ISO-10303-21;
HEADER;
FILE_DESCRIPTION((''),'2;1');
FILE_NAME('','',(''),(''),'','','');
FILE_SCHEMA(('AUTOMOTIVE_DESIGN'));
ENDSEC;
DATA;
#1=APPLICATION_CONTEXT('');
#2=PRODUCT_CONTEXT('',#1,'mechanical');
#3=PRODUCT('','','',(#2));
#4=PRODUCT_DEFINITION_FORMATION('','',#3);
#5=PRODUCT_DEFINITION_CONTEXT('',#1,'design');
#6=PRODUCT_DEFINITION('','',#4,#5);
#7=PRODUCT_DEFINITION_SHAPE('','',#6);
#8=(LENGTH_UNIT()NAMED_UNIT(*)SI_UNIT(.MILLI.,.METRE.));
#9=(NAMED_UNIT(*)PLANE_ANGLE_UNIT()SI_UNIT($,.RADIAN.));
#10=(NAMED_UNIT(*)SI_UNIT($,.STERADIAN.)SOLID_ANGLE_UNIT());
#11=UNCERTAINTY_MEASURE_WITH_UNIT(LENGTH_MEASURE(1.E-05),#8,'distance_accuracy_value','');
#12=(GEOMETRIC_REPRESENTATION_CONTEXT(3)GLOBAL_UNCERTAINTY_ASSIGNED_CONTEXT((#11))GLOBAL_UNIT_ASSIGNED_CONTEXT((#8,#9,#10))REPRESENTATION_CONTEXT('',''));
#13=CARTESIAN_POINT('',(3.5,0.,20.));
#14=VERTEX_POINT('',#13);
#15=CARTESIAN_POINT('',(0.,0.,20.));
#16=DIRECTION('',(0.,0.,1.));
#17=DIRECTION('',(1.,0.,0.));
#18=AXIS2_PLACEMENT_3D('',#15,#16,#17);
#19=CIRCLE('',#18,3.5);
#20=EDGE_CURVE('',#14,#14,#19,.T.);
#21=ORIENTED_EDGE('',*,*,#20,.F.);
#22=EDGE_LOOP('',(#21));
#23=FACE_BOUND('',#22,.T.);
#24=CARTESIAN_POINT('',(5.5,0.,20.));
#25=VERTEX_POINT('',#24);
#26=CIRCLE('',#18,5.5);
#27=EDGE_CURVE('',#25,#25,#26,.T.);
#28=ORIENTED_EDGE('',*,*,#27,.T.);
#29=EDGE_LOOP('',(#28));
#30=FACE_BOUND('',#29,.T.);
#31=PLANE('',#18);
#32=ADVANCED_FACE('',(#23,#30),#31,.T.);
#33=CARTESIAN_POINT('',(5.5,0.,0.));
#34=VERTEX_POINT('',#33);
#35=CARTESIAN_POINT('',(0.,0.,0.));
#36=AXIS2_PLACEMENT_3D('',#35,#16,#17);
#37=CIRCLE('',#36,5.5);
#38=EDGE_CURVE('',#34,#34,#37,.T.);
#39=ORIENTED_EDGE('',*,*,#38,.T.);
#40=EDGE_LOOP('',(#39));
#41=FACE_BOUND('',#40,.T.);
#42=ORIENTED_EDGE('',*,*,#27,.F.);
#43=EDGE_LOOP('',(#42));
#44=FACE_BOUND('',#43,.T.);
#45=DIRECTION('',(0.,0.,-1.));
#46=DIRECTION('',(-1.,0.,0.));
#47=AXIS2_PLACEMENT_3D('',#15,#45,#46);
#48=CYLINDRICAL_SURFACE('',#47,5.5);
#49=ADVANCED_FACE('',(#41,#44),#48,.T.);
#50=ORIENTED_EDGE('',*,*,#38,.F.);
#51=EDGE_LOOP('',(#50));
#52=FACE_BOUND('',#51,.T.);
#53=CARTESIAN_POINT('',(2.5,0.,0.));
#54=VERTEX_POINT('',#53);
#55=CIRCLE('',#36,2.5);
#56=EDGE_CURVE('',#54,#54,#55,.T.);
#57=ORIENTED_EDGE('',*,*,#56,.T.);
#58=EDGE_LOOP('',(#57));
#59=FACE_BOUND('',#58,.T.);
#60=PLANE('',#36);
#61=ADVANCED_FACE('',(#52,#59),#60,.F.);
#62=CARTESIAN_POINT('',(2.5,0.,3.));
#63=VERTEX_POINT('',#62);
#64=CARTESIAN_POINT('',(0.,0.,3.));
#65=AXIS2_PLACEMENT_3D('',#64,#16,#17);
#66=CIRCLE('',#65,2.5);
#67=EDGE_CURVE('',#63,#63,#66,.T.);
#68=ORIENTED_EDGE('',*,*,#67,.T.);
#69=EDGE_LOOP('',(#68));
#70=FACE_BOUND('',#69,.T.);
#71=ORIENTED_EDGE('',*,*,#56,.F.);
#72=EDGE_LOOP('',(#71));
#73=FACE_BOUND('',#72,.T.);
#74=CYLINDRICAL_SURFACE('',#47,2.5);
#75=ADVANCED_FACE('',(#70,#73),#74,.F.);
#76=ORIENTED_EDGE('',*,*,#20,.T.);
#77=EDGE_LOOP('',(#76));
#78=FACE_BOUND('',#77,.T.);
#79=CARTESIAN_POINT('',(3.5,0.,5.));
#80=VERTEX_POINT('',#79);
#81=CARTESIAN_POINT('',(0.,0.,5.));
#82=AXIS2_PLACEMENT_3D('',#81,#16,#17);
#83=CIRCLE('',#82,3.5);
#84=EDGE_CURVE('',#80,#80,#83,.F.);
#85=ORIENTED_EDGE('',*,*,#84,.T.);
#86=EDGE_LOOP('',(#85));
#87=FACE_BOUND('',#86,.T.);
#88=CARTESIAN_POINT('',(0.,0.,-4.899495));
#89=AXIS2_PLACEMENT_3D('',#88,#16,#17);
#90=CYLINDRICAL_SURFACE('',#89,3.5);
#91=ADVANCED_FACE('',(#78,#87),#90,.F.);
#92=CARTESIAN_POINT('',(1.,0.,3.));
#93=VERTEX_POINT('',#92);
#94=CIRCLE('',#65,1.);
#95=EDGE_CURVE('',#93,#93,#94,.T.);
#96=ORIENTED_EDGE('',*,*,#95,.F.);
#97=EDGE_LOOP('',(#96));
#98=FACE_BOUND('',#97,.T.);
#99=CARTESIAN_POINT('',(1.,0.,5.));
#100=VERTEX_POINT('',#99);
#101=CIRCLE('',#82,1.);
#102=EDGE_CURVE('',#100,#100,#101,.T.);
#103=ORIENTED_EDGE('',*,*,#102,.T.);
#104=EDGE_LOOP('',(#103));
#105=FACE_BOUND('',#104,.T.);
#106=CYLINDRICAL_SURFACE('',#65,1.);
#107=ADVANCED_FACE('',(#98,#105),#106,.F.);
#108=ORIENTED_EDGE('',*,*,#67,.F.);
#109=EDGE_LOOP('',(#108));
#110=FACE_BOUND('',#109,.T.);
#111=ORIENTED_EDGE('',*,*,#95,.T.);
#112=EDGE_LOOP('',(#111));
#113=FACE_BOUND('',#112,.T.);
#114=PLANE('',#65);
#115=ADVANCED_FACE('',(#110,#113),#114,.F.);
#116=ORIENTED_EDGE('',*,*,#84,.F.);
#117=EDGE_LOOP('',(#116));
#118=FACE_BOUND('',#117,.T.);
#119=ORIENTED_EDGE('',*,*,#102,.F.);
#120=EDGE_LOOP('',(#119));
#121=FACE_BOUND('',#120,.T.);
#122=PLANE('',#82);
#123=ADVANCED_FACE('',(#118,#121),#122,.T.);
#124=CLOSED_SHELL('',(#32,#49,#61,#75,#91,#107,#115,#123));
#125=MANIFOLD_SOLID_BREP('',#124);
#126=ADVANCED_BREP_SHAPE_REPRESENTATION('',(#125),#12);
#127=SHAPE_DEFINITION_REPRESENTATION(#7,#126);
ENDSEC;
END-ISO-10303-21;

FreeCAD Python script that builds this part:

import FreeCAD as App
import Part
import Sketcher
from FreeCAD import Vector

doc = App.newDocument("Part")
params = doc.addObject("Spreadsheet::Sheet", "Params")
for row, (alias, value) in enumerate([
    ("sketch1_diameter", "11 mm"),
    ("sketch1_diameter2", "5 mm"),
    ("pad1_length", "20 mm"),
    ("sketch2_diameter", "5 mm"),
    ("pad2_length", "2 mm"),
    ("sketch3_diameter", "2 mm"),
    ("pocket1_length", "2 mm"),
    ("sketch4_diameter", "7 mm"),
    ("pocket2_length", "15 mm"),
], start=1):
    params.set(f"A{row}", alias)
    params.set(f"B{row}", "=" + value)
    params.setAlias(f"B{row}", alias)

body = doc.addObject("PartDesign::Body", "Body")

# Sketch on XY plane
sketch1 = doc.addObject("Sketcher::SketchObject", "Sketch")
body.addObject(sketch1)
sketch1.AttachmentSupport = (doc.XY_Plane, [""])
sketch1.MapMode = "FlatFace"
sketch1.addGeometry(Part.Circle(Vector(0, 0, 0), Vector(0, 0, 1), 5.5), False)
sketch1.addGeometry(Part.Circle(Vector(0, 0, 0), Vector(0, 0, 1), 2.5), False)
sketch1.addConstraint(Sketcher.Constraint("Coincident", 0, 3, -1, 1))
sketch1.addConstraint(Sketcher.Constraint("Coincident", 1, 3, -1, 1))
sketch1.addConstraint(Sketcher.Constraint("Diameter", 0, 11.0))
sketch1.addConstraint(Sketcher.Constraint("Diameter", 1, 5.0))
sketch1.setExpression("Constraints[2]", "Params.sketch1_diameter")
sketch1.setExpression("Constraints[3]", "Params.sketch1_diameter2")
pad1 = doc.addObject("PartDesign::Pad", "Pad")
body.addObject(pad1)
pad1.Profile = sketch1
pad1.setExpression("Length", "Params.pad1_length")

# Sketch on XY plane
sketch2 = doc.addObject("Sketcher::SketchObject", "Sketch001")
body.addObject(sketch2)
sketch2.AttachmentSupport = (doc.XY_Plane, [""])
sketch2.MapMode = "FlatFace"
sketch2.AttachmentOffset = App.Placement(Vector(0, 0, 3), App.Rotation())
sketch2.addGeometry(Part.Circle(Vector(0, 0, 0), Vector(0, 0, 1), 2.5), False)
sketch2.addConstraint(Sketcher.Constraint("Coincident", 0, 3, -1, 1))
sketch2.addConstraint(Sketcher.Constraint("Diameter", 0, 5.0))
sketch2.setExpression("Constraints[1]", "Params.sketch2_diameter")
pad2 = doc.addObject("PartDesign::Pad", "Pad001")
body.addObject(pad2)
pad2.Profile = sketch2
pad2.setExpression("Length", "Params.pad2_length")

# Sketch on XY plane
sketch3 = doc.addObject("Sketcher::SketchObject", "Sketch002")
body.addObject(sketch3)
sketch3.AttachmentSupport = (doc.XY_Plane, [""])
sketch3.MapMode = "FlatFace"
sketch3.AttachmentOffset = App.Placement(Vector(0, 0, 5), App.Rotation())
sketch3.addGeometry(Part.Circle(Vector(0, 0, 0), Vector(0, 0, 1), 1), False)
sketch3.addConstraint(Sketcher.Constraint("Coincident", 0, 3, -1, 1))
sketch3.addConstraint(Sketcher.Constraint("Diameter", 0, 2.0))
sketch3.setExpression("Constraints[1]", "Params.sketch3_diameter")
pocket1 = doc.addObject("PartDesign::Pocket", "Pocket")
body.addObject(pocket1)
pocket1.Profile = sketch3
pocket1.setExpression("Length", "Params.pocket1_length")

# Sketch on XY plane
sketch4 = doc.addObject("Sketcher::SketchObject", "Sketch003")
body.addObject(sketch4)
sketch4.AttachmentSupport = (doc.XY_Plane, [""])
sketch4.MapMode = "FlatFace"
sketch4.AttachmentOffset = App.Placement(Vector(0, 0, 20), App.Rotation())
sketch4.addGeometry(Part.Circle(Vector(0, 0, 0), Vector(0, 0, 1), 3.5), False)
sketch4.addConstraint(Sketcher.Constraint("Coincident", 0, 3, -1, 1))
sketch4.addConstraint(Sketcher.Constraint("Diameter", 0, 7.0))
sketch4.setExpression("Constraints[1]", "Params.sketch4_diameter")
pocket2 = doc.addObject("PartDesign::Pocket", "Pocket001")
body.addObject(pocket2)
pocket2.Profile = sketch4
pocket2.setExpression("Length", "Params.pocket2_length")

doc.recompute()
